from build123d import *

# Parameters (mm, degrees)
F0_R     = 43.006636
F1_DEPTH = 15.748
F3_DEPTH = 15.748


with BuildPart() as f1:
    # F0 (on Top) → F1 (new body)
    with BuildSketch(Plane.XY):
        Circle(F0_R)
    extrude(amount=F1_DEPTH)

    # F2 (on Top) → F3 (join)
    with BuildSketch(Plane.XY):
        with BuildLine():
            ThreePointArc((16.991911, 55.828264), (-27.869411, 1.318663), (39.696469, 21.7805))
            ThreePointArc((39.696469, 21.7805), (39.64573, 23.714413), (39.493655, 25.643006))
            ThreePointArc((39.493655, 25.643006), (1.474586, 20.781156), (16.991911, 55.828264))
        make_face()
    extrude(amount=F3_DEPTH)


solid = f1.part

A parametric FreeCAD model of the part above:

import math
import FreeCAD as App
import Part
import Sketcher
from FreeCAD import Vector
Q = App.Units.Quantity

doc = App.newDocument("Part")
params = doc.addObject("Spreadsheet::Sheet", "Params")
for row, (alias, value) in enumerate([
    ("pad1_length", "0.62 in"),
    ("pad2_length", "0.62 in"),
], start=1):
    params.set(f"A{row}", alias)
    params.set(f"B{row}", "=" + value)
    params.setAlias(f"B{row}", alias)

body = doc.addObject("PartDesign::Body", "Body")

sketch1 = body.newObject("Sketcher::SketchObject", "Sketch")
sketch1.AttachmentSupport = (doc.getObject("XY_Plane"), [""])
sketch1.MapMode = "FlatFace"
sketch1.addGeometry(Part.Circle(Vector(0, 0, 0), Vector(0, 0, 1), 43), False)
sketch1.addConstraint([
    Sketcher.Constraint("Coincident", 0, 3, -1, 1),
    Sketcher.Constraint("Diameter", 0, Q("86.013272 mm")),
])
pad1 = body.newObject("PartDesign::Pad", "Pad")
pad1.Profile = sketch1
pad1.setExpression("Length", "Params.pad1_length")

sketch2 = body.newObject("Sketcher::SketchObject", "Sketch001")
sketch2.AttachmentSupport = (doc.getObject("XY_Plane"), [""])
sketch2.MapMode = "FlatFace"
sketch2.addGeometry([
    Part.ArcOfCircle(Part.Circle(Vector(2.81517, 21.7805, 0), Vector(0, 0, 1), 36.881299), math.radians(67.394227), math.radians(360)),
    Part.ArcOfCircle(Part.Circle(Vector(2.814719, 21.780476, 0), Vector(0, 0, 1), 36.88175), math.radians(0.000037), math.radians(6.011461)),
    Part.ArcOfCircle(Part.Circle(Vector(19.1135, 33.930167, 0), Vector(0, 0, 1), 22.000631), math.radians(95.533808), math.radians(337.871917)),
], False)
sketch2.addConstraint([
    Sketcher.Constraint("Coincident", 0, 2, 1, 1),
    Sketcher.Constraint("Coincident", 1, 2, 2, 2),
    Sketcher.Constraint("Coincident", 2, 1, 0, 1),
    Sketcher.Constraint("Radius", 0, Q("36.881299 mm")),
    Sketcher.Constraint("Radius", 1, Q("36.88175 mm")),
    Sketcher.Constraint("Radius", 2, Q("22.000631 mm")),
    Sketcher.Constraint("DistanceY", -1, 1, 0, 3, Q("0.8575 in")),
    Sketcher.Constraint("DistanceX", -1, 1, 2, 3, Q("0.7525 in")),
    Sketcher.Constraint("DistanceY", -1, 1, 0, 2, Q("0.8575 in")),
    Sketcher.Constraint("DistanceX", -1, 1, 0, 3, Q("2.81517 mm")),
    Sketcher.Constraint("DistanceX", -1, 1, 2, 1, Q("16.991911 mm")),
    Sketcher.Constraint("DistanceY", 1, 3, 2, 3, Q("12.149691 mm")),
])
pad2 = body.newObject("PartDesign::Pad", "Pad001")
pad2.Profile = sketch2
pad2.setExpression("Length", "Params.pad2_length")

doc.recompute()
